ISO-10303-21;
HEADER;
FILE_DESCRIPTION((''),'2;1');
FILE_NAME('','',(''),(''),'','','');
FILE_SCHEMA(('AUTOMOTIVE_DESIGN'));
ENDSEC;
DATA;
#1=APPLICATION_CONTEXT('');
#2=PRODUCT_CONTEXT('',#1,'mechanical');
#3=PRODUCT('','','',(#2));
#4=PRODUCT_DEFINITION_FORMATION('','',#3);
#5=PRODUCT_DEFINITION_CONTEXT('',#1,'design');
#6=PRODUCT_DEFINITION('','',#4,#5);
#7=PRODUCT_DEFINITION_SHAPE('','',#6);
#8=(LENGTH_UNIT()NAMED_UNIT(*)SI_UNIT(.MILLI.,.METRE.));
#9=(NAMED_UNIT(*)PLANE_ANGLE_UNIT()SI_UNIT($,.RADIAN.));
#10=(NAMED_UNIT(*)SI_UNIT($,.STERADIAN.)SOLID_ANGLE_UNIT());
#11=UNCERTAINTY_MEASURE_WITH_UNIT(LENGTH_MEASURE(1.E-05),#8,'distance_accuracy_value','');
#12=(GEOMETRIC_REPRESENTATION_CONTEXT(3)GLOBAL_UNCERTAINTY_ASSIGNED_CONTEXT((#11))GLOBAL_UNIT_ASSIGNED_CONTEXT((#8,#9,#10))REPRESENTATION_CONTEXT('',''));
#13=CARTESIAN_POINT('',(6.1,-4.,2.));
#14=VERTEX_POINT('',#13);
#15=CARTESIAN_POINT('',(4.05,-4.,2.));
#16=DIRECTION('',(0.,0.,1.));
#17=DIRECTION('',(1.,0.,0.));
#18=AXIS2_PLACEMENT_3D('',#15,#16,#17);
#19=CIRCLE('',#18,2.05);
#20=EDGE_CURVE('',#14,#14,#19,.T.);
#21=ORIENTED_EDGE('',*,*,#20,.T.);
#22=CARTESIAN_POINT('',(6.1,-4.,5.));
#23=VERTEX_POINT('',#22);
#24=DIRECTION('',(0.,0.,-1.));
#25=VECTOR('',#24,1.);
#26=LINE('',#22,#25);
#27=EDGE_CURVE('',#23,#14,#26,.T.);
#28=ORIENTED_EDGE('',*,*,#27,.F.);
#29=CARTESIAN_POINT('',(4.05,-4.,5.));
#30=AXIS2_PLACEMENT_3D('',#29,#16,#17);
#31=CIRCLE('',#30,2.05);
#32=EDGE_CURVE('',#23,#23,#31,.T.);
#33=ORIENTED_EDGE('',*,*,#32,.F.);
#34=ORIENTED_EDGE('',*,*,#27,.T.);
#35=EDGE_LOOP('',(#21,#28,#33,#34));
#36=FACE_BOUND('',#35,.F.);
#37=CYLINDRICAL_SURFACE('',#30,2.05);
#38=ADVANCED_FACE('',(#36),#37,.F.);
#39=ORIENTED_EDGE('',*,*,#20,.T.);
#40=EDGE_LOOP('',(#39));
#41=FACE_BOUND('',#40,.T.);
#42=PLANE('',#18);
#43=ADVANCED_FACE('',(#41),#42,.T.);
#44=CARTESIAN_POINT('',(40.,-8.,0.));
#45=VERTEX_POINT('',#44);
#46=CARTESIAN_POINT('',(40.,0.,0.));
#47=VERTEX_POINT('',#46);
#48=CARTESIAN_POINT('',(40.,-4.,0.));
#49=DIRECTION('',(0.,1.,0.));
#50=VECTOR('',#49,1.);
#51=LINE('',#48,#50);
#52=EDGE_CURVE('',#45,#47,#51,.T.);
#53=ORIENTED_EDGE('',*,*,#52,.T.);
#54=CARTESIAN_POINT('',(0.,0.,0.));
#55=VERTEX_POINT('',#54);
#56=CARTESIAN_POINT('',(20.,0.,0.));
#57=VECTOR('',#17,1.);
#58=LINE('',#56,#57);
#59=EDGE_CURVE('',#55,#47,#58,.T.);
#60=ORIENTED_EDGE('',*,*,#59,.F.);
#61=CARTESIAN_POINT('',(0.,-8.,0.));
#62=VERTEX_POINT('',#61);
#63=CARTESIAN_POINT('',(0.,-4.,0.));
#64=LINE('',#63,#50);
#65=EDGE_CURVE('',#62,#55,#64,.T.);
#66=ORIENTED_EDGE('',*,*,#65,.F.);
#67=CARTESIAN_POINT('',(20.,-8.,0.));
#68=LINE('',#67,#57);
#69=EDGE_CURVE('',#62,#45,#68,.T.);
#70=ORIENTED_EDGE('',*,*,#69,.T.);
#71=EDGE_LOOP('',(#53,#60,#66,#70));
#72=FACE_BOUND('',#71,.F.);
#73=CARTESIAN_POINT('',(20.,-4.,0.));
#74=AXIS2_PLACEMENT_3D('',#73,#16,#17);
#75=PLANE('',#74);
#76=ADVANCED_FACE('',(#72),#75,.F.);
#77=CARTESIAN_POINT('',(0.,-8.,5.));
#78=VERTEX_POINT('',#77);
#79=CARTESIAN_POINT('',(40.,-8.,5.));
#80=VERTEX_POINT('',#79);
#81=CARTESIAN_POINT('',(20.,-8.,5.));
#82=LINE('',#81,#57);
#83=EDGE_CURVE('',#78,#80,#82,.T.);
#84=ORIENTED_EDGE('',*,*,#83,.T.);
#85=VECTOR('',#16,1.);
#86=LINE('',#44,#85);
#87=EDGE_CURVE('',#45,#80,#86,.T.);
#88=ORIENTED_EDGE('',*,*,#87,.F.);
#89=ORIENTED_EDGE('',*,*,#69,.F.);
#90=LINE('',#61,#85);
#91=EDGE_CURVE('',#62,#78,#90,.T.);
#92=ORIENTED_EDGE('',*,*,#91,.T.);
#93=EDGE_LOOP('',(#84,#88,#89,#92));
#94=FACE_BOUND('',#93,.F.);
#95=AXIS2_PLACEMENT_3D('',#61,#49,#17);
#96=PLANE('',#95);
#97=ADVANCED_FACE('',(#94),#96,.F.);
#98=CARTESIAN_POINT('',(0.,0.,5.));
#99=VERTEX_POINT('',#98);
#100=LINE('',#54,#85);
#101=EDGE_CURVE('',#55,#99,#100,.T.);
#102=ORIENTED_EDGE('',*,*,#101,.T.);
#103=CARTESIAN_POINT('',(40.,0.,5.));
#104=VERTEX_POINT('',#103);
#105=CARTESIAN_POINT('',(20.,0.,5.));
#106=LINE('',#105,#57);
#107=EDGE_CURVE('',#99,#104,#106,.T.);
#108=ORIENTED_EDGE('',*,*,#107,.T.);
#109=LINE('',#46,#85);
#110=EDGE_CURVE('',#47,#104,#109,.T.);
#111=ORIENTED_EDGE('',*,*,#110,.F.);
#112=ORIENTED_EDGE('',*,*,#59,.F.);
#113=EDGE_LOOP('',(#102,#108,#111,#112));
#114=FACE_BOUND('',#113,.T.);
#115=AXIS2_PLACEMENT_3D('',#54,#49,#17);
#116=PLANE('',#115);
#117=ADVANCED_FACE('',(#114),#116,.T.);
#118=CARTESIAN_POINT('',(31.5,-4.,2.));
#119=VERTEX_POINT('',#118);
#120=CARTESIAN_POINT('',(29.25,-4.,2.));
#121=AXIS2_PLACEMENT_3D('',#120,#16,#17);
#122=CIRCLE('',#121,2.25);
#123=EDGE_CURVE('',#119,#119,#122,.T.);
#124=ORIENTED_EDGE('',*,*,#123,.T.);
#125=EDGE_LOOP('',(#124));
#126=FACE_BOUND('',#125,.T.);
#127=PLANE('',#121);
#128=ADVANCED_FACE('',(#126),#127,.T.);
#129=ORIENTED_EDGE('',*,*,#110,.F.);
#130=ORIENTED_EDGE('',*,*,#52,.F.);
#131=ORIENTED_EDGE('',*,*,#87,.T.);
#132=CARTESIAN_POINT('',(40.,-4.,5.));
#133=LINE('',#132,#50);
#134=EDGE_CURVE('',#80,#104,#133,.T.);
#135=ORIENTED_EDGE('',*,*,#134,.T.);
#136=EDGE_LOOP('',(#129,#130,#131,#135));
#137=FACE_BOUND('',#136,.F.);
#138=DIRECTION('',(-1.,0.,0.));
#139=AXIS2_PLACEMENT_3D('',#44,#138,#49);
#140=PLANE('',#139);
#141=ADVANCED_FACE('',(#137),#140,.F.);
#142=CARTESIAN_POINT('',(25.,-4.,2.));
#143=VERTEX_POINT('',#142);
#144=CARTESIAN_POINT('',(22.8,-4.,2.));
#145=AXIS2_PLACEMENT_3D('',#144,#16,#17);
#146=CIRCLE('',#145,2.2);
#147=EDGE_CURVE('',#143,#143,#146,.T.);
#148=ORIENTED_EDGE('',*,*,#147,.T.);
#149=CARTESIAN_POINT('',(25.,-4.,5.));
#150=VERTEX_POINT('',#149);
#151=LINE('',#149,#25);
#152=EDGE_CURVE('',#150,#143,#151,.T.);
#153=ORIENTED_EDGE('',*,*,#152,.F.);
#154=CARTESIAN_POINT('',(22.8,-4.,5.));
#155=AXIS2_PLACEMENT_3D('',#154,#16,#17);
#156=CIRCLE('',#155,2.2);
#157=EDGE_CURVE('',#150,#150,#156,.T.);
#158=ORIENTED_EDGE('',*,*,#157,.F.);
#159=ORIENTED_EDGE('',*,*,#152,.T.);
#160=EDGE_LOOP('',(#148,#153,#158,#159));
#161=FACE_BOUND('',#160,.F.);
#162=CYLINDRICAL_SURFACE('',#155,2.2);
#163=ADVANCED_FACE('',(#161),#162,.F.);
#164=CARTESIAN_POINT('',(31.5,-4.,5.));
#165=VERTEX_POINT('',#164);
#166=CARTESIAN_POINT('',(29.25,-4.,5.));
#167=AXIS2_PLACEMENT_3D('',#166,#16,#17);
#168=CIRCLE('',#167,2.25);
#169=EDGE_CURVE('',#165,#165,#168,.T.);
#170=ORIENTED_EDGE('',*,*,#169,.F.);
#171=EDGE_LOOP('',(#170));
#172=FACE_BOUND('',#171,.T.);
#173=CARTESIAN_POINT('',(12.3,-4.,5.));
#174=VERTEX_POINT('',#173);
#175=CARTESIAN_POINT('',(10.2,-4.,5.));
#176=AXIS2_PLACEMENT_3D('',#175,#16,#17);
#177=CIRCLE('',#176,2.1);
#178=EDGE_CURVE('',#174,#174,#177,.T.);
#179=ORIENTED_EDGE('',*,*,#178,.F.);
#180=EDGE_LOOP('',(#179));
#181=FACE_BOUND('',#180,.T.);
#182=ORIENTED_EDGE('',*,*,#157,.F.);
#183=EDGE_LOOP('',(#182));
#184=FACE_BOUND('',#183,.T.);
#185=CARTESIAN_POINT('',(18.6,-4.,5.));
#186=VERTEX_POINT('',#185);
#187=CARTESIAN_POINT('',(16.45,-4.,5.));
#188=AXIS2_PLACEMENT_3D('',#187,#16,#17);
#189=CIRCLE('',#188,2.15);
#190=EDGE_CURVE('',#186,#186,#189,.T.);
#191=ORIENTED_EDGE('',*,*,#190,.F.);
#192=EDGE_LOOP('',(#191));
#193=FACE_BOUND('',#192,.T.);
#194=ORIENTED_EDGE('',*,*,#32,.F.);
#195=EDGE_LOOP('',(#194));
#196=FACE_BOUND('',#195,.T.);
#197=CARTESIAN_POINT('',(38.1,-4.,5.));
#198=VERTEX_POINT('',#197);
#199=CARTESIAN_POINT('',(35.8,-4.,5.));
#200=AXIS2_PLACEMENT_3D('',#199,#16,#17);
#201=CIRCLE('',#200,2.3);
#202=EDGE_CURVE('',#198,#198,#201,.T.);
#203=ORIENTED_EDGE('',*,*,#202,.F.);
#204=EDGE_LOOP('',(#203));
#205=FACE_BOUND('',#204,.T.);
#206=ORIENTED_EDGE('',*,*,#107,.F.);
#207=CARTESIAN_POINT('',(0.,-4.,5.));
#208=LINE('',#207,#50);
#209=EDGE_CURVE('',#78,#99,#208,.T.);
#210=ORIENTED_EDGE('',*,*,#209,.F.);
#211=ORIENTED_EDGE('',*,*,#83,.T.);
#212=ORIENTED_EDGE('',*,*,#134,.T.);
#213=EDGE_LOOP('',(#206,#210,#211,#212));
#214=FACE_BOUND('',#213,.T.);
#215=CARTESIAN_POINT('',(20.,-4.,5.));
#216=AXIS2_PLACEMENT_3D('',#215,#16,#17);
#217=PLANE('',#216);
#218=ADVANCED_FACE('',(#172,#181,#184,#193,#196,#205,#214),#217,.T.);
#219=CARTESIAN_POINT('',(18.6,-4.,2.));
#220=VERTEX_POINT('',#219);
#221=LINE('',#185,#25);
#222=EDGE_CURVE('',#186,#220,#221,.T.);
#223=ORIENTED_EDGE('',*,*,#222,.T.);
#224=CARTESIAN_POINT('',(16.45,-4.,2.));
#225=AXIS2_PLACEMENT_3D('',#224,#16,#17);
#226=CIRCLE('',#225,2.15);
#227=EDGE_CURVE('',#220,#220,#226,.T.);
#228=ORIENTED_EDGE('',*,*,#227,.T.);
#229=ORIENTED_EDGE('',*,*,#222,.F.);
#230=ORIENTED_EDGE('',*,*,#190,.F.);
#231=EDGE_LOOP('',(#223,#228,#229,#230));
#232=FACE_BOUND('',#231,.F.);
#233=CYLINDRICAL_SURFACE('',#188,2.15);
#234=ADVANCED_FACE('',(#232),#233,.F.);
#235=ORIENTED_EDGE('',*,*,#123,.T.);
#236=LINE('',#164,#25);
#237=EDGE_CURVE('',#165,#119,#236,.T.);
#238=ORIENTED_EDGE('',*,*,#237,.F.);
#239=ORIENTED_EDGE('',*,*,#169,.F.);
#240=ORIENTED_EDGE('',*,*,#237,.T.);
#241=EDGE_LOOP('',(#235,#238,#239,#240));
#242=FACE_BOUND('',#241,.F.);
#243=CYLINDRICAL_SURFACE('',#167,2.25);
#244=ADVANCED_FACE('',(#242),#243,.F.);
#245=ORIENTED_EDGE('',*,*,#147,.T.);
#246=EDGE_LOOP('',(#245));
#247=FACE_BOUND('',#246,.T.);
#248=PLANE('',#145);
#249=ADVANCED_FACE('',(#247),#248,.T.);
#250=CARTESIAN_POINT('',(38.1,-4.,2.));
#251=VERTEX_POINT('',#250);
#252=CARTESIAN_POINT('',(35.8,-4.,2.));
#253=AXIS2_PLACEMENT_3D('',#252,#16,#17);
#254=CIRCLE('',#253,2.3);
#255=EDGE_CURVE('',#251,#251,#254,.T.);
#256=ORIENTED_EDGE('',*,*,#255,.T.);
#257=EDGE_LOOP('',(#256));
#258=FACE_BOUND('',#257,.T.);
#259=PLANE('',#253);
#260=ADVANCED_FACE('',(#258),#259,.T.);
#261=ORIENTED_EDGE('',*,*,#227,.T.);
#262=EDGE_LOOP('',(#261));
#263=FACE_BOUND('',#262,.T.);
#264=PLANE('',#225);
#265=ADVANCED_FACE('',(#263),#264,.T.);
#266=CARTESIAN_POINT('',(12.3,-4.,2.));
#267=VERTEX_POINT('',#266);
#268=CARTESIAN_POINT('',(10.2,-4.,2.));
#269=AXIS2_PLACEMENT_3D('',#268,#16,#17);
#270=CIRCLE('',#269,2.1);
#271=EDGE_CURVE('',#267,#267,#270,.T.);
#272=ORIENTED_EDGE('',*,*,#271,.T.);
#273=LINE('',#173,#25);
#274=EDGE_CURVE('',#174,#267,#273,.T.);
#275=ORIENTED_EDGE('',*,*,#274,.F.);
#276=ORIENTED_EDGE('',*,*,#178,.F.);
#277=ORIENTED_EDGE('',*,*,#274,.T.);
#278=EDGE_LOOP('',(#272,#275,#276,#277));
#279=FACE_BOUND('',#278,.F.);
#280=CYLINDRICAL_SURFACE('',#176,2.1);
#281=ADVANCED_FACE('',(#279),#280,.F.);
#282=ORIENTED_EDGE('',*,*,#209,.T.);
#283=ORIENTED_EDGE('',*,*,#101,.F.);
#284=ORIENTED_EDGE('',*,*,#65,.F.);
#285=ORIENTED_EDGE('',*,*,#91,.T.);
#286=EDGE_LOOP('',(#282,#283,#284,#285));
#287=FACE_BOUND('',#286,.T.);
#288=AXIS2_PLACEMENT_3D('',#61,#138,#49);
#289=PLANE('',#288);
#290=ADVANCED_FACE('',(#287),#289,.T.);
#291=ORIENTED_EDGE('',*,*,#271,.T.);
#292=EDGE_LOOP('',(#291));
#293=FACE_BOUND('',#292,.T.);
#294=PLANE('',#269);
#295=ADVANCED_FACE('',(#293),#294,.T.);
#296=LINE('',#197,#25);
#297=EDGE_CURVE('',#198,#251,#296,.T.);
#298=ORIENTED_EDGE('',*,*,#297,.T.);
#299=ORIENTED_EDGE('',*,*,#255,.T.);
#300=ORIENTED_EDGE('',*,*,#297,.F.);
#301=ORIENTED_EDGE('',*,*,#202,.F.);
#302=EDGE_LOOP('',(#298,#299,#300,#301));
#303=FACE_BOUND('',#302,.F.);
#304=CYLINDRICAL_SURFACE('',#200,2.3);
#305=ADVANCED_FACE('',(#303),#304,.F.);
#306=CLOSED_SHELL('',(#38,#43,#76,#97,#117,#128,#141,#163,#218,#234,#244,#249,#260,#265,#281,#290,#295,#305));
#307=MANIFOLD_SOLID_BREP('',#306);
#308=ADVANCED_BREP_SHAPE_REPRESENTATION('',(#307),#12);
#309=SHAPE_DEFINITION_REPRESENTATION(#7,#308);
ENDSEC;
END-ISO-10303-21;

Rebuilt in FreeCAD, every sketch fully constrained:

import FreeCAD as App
import Part
import Sketcher

V = App.Vector

doc = App.newDocument("Part")
body = doc.addObject("PartDesign::Body", "Body")

sketch1 = doc.addObject("Sketcher::SketchObject", "Sketch")
body.addObject(sketch1)
sketch1.AttachmentSupport = (doc.XY_Plane, [""])
sketch1.MapMode = "FlatFace"
sketch1.addGeometry([
    Part.LineSegment(V(0, 0, 0), V(0, -8, 0)),
    Part.LineSegment(V(0, -8, 0), V(40, -8, 0)),
    Part.LineSegment(V(40, -8, 0), V(40, 0, 0)),
    Part.LineSegment(V(40, 0, 0), V(0, 0, 0)),
], False)
sketch1.addConstraint([
    Sketcher.Constraint("Coincident", 0, 2, 1, 1),
    Sketcher.Constraint("Coincident", 1, 2, 2, 1),
    Sketcher.Constraint("Coincident", 2, 2, 3, 1),
    Sketcher.Constraint("Coincident", 3, 2, 0, 1),
    Sketcher.Constraint("Vertical", 0),
    Sketcher.Constraint("Horizontal", 1),
    Sketcher.Constraint("Vertical", 2),
    Sketcher.Constraint("Horizontal", 3),
    Sketcher.Constraint("Coincident", 3, 2, -1, 1),
    Sketcher.Constraint("DistanceX", 1, 1, 1, 2, 40.0),
    Sketcher.Constraint("DistanceY", 0, 2, 0, 1, 8.0),
])
pad1 = doc.addObject("PartDesign::Pad", "Pad")
body.addObject(pad1)
pad1.Profile = sketch1
pad1.Length = 5

sketch2 = doc.addObject("Sketcher::SketchObject", "Sketch001")
body.addObject(sketch2)
sketch2.AttachmentSupport = (doc.XY_Plane, [""])
sketch2.MapMode = "FlatFace"
sketch2.AttachmentOffset = App.Placement(V(0, 0, 5), App.Rotation())
sketch2.addGeometry([
    Part.Circle(V(4, -4, 0), V(0, 0, 1), 2),
    Part.Circle(V(10.2, -4, 0), V(0, 0, 1), 2.1),
    Part.Circle(V(16.4, -4, 0), V(0, 0, 1), 2.1),
    Part.Circle(V(22.8, -4, 0), V(0, 0, 1), 2.2),
    Part.Circle(V(29.2, -4, 0), V(0, 0, 1), 2.2),
    Part.Circle(V(35.8, -4, 0), V(0, 0, 1), 2.3),
], False)
sketch2.addConstraint([
    Sketcher.Constraint("Horizontal", 0, 3, 1, 3),
    Sketcher.Constraint("Horizontal", 1, 3, 2, 3),
    Sketcher.Constraint("Horizontal", 2, 3, 3, 3),
    Sketcher.Constraint("Horizontal", 3, 3, 4, 3),
    Sketcher.Constraint("Horizontal", 4, 3, 5, 3),
    Sketcher.Constraint("Diameter", 0, 4.1),
    Sketcher.Constraint("Diameter", 1, 4.2),
    Sketcher.Constraint("Diameter", 2, 4.3),
    Sketcher.Constraint("Diameter", 3, 4.4),
    Sketcher.Constraint("Diameter", 4, 4.5),
    Sketcher.Constraint("Diameter", 5, 4.6),
    Sketcher.Constraint("DistanceY", 0, 3, -1, 1, 4.0),
    Sketcher.Constraint("DistanceX", 3, 3, 5, 3, 13.0),
    Sketcher.Constraint("DistanceX", -1, 1, 1, 3, 10.2),
    Sketcher.Constraint("DistanceX", -1, 1, 3, 3, 22.8),
    Sketcher.Constraint("DistanceX", 0, 3, 2, 3, 12.4),
    Sketcher.Constraint("DistanceX", 2, 3, 4, 3, 12.8),
    Sketcher.Constraint("DistanceX", -1, 1, 0, 3, 4.05),
])
pocket1 = doc.addObject("PartDesign::Pocket", "Pocket")
body.addObject(pocket1)
pocket1.Profile = sketch2
pocket1.Length = 3

doc.recompute()
